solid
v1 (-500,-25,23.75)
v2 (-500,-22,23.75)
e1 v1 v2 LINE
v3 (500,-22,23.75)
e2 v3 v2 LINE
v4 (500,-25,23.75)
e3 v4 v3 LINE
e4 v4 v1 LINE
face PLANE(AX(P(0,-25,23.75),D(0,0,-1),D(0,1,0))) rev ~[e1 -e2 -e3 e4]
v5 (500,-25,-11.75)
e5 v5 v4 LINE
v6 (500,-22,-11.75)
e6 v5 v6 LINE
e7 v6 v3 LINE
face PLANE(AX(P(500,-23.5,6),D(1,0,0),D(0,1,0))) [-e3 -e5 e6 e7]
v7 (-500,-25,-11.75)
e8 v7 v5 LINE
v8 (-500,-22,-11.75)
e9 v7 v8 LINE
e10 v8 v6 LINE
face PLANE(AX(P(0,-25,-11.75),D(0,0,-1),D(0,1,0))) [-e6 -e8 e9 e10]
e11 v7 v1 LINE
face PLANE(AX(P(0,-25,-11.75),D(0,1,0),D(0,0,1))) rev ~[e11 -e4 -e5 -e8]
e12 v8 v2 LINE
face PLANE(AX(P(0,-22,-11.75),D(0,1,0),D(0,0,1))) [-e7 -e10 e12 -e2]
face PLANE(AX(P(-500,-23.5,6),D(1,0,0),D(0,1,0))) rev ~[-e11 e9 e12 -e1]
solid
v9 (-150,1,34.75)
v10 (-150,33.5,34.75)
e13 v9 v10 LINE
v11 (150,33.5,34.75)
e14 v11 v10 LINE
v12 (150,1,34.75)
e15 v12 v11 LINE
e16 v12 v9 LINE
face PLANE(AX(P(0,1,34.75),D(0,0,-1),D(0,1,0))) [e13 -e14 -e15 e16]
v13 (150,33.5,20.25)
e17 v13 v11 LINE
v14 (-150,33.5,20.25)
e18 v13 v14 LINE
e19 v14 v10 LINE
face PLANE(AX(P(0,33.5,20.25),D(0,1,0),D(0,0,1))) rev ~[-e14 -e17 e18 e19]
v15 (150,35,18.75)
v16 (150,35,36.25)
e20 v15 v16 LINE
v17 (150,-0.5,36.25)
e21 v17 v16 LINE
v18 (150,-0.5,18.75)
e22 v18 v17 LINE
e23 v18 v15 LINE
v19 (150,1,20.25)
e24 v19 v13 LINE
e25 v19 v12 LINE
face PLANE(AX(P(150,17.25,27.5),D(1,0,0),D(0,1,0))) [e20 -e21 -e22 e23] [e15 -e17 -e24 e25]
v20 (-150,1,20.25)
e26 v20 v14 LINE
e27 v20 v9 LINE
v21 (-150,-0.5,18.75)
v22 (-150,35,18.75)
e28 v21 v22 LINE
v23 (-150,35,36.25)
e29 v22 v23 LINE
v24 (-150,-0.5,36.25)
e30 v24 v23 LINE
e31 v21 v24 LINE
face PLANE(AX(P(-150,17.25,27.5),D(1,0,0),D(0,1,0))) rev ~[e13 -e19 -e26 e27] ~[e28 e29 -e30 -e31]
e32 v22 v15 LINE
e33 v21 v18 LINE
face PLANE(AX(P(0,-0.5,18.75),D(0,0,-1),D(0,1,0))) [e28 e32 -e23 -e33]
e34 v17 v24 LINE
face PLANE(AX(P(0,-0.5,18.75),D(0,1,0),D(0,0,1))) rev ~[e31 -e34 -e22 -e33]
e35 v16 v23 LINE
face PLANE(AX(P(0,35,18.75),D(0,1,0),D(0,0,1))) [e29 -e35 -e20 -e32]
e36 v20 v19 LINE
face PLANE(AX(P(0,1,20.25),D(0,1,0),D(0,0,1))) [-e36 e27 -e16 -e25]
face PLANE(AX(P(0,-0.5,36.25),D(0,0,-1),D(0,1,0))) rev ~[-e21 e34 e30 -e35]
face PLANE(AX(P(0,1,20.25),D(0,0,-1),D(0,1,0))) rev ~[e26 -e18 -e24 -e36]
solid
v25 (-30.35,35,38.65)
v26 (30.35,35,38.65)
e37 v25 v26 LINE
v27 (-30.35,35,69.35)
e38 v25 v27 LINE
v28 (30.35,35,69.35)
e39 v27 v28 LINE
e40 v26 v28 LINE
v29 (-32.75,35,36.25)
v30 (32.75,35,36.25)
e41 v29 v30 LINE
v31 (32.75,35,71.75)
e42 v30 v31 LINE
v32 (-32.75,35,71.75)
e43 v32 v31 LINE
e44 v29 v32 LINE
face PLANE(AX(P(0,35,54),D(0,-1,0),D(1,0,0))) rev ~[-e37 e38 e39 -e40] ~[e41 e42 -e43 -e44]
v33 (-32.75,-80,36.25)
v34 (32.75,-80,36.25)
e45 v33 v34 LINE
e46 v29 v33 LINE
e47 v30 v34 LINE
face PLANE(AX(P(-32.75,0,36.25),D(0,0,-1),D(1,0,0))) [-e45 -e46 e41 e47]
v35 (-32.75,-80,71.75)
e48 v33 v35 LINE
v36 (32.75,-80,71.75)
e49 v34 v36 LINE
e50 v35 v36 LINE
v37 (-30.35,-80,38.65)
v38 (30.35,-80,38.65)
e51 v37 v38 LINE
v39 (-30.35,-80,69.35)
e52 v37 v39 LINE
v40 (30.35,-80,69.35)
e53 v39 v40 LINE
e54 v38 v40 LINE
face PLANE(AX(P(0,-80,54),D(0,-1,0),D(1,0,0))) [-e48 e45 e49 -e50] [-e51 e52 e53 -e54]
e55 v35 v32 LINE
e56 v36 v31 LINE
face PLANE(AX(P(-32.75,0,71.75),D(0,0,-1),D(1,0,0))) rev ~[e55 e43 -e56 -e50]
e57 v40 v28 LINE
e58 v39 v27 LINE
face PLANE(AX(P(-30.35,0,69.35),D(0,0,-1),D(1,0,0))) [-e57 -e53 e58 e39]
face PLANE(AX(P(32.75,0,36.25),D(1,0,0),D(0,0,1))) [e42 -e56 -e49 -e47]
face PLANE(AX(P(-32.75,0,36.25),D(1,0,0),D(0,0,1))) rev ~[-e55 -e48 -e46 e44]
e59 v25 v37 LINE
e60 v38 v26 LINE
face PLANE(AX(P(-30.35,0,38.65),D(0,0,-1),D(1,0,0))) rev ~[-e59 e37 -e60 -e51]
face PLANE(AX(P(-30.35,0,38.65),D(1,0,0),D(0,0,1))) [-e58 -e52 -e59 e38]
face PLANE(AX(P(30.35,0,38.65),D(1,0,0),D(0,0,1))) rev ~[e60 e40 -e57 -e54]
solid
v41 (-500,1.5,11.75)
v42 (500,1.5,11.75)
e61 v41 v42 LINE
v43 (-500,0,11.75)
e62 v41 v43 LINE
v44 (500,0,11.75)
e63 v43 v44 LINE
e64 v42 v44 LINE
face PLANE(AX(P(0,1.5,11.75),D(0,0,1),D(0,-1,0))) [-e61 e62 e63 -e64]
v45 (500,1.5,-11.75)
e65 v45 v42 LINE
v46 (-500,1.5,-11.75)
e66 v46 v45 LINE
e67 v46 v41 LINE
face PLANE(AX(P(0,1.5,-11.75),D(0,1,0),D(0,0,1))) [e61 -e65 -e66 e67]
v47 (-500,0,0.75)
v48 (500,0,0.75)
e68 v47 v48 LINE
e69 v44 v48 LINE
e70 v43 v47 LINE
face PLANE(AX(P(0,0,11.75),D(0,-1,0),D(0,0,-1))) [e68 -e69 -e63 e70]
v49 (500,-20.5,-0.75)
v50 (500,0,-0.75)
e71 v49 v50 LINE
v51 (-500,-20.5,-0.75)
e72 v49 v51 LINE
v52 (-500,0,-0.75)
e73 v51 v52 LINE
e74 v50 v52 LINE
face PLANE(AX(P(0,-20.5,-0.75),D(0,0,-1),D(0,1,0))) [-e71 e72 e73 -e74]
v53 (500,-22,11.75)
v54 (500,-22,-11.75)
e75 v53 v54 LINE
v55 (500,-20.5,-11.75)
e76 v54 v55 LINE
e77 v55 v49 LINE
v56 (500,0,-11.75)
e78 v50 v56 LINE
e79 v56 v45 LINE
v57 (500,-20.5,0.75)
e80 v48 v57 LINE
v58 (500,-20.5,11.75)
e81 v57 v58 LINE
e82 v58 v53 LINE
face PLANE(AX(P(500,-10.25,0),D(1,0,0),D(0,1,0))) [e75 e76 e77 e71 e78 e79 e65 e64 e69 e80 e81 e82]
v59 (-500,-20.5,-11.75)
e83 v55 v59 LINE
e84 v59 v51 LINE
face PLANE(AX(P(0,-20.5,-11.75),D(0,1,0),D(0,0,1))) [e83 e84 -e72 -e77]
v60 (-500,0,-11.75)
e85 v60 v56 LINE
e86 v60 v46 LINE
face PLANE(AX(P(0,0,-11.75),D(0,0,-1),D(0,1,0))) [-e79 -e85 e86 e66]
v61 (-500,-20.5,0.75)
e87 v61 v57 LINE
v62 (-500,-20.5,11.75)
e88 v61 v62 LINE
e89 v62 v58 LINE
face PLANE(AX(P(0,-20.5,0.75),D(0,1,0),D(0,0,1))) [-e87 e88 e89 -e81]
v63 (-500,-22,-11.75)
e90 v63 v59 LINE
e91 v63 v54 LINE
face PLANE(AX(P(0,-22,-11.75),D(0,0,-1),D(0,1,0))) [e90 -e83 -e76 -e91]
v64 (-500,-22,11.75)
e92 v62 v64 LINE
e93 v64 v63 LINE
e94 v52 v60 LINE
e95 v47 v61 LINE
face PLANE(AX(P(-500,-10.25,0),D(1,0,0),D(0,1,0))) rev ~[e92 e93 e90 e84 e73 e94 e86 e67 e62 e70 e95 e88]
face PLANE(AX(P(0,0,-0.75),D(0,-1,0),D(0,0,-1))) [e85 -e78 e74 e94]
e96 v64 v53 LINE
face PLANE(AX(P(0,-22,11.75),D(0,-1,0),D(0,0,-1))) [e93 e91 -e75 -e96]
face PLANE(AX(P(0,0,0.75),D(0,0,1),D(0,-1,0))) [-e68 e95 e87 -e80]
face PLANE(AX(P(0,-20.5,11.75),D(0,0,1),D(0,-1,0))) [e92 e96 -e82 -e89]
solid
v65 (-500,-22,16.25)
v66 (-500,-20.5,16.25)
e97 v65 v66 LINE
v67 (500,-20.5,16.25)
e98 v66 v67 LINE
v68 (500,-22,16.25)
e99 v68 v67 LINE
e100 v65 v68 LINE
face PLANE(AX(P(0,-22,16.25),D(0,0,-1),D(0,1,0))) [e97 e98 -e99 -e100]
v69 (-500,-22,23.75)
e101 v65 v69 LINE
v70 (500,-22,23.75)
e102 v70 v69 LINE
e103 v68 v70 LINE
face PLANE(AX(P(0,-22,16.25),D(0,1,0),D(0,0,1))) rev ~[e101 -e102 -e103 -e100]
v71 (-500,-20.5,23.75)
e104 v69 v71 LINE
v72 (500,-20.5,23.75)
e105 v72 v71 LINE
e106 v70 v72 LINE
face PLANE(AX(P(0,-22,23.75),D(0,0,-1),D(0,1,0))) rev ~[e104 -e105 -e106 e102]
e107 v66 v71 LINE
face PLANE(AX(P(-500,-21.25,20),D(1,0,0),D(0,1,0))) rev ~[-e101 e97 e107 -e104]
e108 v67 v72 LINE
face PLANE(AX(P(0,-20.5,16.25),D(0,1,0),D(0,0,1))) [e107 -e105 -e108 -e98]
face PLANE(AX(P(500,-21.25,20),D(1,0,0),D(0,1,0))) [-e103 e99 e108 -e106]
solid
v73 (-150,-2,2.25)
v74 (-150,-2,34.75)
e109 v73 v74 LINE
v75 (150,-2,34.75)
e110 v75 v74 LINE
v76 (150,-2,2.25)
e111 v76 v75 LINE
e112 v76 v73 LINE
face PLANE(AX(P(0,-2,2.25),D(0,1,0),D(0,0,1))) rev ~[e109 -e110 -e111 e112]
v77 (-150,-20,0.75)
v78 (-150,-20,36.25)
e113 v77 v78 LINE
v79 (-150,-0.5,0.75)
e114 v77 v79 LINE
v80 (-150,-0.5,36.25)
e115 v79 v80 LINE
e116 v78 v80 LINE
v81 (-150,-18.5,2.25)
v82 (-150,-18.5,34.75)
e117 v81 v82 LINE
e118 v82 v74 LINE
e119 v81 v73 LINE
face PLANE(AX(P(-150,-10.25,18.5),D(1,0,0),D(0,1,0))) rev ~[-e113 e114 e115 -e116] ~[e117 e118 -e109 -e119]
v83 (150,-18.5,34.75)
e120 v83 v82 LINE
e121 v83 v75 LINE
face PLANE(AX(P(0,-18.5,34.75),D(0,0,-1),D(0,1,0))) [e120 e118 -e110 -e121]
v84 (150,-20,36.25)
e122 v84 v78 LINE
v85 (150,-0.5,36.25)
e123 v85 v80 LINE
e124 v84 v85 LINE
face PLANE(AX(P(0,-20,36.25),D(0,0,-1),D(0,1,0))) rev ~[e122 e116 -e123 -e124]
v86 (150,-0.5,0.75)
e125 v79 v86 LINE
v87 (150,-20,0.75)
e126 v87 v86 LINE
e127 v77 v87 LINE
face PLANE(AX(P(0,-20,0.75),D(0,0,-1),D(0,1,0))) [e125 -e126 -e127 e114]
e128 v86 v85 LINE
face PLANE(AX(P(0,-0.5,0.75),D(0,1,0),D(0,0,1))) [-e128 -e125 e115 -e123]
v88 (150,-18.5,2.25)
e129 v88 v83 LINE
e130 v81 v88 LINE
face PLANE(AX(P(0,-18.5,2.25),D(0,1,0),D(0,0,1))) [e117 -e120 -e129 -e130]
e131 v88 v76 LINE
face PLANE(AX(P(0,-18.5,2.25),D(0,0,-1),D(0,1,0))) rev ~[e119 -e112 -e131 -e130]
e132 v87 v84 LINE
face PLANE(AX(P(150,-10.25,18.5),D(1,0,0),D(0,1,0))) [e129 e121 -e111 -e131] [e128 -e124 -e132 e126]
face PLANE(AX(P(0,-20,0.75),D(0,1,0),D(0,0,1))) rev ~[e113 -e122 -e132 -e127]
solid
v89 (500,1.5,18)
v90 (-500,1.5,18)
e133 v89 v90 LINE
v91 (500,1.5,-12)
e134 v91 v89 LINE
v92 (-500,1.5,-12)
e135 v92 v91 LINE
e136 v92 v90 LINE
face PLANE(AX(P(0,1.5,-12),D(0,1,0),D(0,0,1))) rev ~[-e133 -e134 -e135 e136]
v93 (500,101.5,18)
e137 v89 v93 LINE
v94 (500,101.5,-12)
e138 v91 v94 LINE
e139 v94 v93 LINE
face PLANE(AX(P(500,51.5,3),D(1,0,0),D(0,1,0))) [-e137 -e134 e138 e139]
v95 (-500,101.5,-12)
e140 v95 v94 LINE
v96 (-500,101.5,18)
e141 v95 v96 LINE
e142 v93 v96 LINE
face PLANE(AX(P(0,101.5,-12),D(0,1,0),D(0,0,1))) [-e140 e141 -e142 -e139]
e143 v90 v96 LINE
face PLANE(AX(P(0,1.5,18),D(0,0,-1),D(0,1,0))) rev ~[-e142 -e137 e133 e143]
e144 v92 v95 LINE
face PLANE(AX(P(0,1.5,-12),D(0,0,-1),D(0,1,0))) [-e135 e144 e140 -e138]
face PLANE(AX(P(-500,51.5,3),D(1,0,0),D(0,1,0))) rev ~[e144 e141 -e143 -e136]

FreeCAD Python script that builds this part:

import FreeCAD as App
import Part
import Sketcher

V = App.Vector
Q = App.Units.Quantity


def add_polygon(sketch, points):
    """Adds a closed chain of lines whose ends are joined by coincident constraints."""
    first, n = sketch.GeometryCount, len(points)
    for a, b in zip(points, points[1:] + points[:1]):
        sketch.addGeometry(Part.LineSegment(App.Vector(*a, 0), App.Vector(*b, 0)), False)
    for i in range(n):
        sketch.addConstraint(Sketcher.Constraint("Coincident", first + i, 2, first + (i + 1) % n, 1))

doc = App.newDocument("Part")
params = doc.addObject("Spreadsheet::Sheet", "Params")
for row, (alias, value) in enumerate([
    ("sketch1_height", "11 mm"),
    ("sketch1_width", "1.5 mm"),
    ("sketch1_width2", "20.5 mm"),
    ("sketch1_height2", "23.5 mm"),
    ("pad1_length", "1000 mm"),
    ("sketch2_width", "19.5 mm"),
    ("sketch2_width2", "16.5 mm"),
    ("sketch2_height", "35.5 mm"),
    ("sketch2_height2", "32.5 mm"),
    ("pad2_length", "300 mm"),
    ("sketch3_width", "3 mm"),
    ("sketch3_height", "35.5 mm"),
    ("pad3_length", "1000 mm"),
    ("sketch4_width", "1.5 mm"),
    ("sketch4_height", "7.5 mm"),
    ("pad4_length", "1000 mm"),
    ("sketch5_width", "35.5 mm"),
    ("sketch5_width2", "32.5 mm"),
    ("sketch5_height", "17.5 mm"),
    ("sketch5_height2", "14.5 mm"),
    ("pad5_length", "300 mm"),
    ("sketch6_width", "65.5 mm"),
    ("sketch6_width2", "60.7 mm"),
    ("sketch6_height", "35.5 mm"),
    ("sketch6_height2", "30.7 mm"),
    ("pad6_length", "80 mm"),
    ("pad6_length2", "35 mm"),
    ("sketch7_width", "100 mm"),
    ("sketch7_height", "30 mm"),
    ("pad7_length", "1000 mm"),
], start=1):
    params.set(f"A{row}", alias)
    params.set(f"B{row}", "=" + value)
    params.setAlias(f"B{row}", alias)

body = doc.addObject("PartDesign::Body", "Body")

# Sketch on YZ plane
sketch1 = body.newObject("Sketcher::SketchObject", "Sketch")
sketch1.AttachmentSupport = (doc.getObject("YZ_Plane"), [""])
sketch1.MapMode = "FlatFace"
add_polygon(sketch1, [(0, -0.8), (0, -11.8), (1.5, -11.8), (1.5, 11.8), (0, 11.8), (0, 0.8), (-20.5, 0.8), (-20.5, 11.8), (-22, 11.8), (-22, -11.8), (-20.5, -11.8), (-20.5, -0.8)])  # lines 0-11
sketch1.addConstraint([
    Sketcher.Constraint("Vertical", 0),
    Sketcher.Constraint("Horizontal", 1),
    Sketcher.Constraint("Vertical", 2),
    Sketcher.Constraint("Horizontal", 3),
    Sketcher.Constraint("Vertical", 4),
    Sketcher.Constraint("Horizontal", 5),
    Sketcher.Constraint("Vertical", 6),
    Sketcher.Constraint("Horizontal", 7),
    Sketcher.Constraint("Vertical", 8),
    Sketcher.Constraint("Horizontal", 9),
    Sketcher.Constraint("Vertical", 10),
    Sketcher.Constraint("Horizontal", 11),
    Sketcher.Constraint("Symmetric", 0, 2, 3, 2, -1, 1),
    Sketcher.Constraint("Symmetric", 6, 2, 9, 2, -1),
    Sketcher.Constraint("Symmetric", 4, 2, 11, 2, -1),
    Sketcher.Constraint("Horizontal", 3, 2, 6, 2),
    Sketcher.Constraint("Equal", 3, 7),
    Sketcher.Constraint("DistanceY", 0, 2, 0, 1, Q("11 mm")),
    Sketcher.Constraint("DistanceX", 1, 1, 1, 2, Q("1.5 mm")),
    Sketcher.Constraint("DistanceX", 5, 2, 5, 1, Q("20.5 mm")),
    Sketcher.Constraint("DistanceY", 2, 1, 2, 2, Q("23.5 mm")),
])
sketch1.setExpression("Constraints[29]", "Params.sketch1_height")
sketch1.setExpression("Constraints[30]", "Params.sketch1_width")
sketch1.setExpression("Constraints[31]", "Params.sketch1_width2")
sketch1.setExpression("Constraints[32]", "Params.sketch1_height2")
pad1 = body.newObject("PartDesign::Pad", "Pad")
pad1.Profile = sketch1
pad1.setExpression("Length", "Params.pad1_length")
pad1.Midplane = True
body2 = doc.addObject("PartDesign::Body", "Body001")

# Sketch on YZ plane
sketch2 = body2.newObject("Sketcher::SketchObject", "Sketch001")
sketch2.AttachmentSupport = (doc.getObject("YZ_Plane001"), [""])
sketch2.MapMode = "FlatFace"
add_polygon(sketch2, [(-20, 36), (-20, 1), (0, 1), (0, 36)])  # lines 0-3
add_polygon(sketch2, [(-2, 2), (-18, 2), (-18, 35), (-2, 35)])  # lines 4-7
sketch2.addConstraint([
    Sketcher.Constraint("Vertical", 0),
    Sketcher.Constraint("Horizontal", 1),
    Sketcher.Constraint("Vertical", 2),
    Sketcher.Constraint("Horizontal", 3),
    Sketcher.Constraint("Horizontal", 4),
    Sketcher.Constraint("Vertical", 5),
    Sketcher.Constraint("Horizontal", 6),
    Sketcher.Constraint("Vertical", 7),
    Sketcher.Constraint("DistanceX", 1, 1, 1, 2, Q("19.5 mm")),
    Sketcher.Constraint("DistanceX", 4, 2, 4, 1, Q("16.5 mm")),
    Sketcher.Constraint("DistanceY", 0, 2, 0, 1, Q("35.5 mm")),
    Sketcher.Constraint("DistanceY", 5, 1, 5, 2, Q("32.5 mm")),
    Sketcher.Constraint("DistanceX", 0, 2, -1, 1, Q("20 mm")),
    Sketcher.Constraint("DistanceX", 6, 2, -1, 1, Q("2 mm")),
    Sketcher.Constraint("DistanceY", 4, 2, 3, 2, Q("34 mm")),
    Sketcher.Constraint("DistanceY", -1, 1, 0, 2, Q("0.75 mm")),
])
sketch2.setExpression("Constraints[16]", "Params.sketch2_width")
sketch2.setExpression("Constraints[17]", "Params.sketch2_width2")
sketch2.setExpression("Constraints[18]", "Params.sketch2_height")
sketch2.setExpression("Constraints[19]", "Params.sketch2_height2")
pad2 = body2.newObject("PartDesign::Pad", "Pad001")
pad2.Profile = sketch2
pad2.setExpression("Length", "Params.pad2_length")
pad2.Midplane = True
body3 = doc.addObject("PartDesign::Body", "Body002")

# Sketch on YZ plane
sketch3 = body3.newObject("Sketcher::SketchObject", "Sketch002")
sketch3.AttachmentSupport = (doc.getObject("YZ_Plane002"), [""])
sketch3.MapMode = "FlatFace"
add_polygon(sketch3, [(-25, 23.8), (-25, -11.8), (-22, -11.8), (-22, 23.8)])  # lines 0-3
sketch3.addConstraint([
    Sketcher.Constraint("Vertical", 0),
    Sketcher.Constraint("Horizontal", 1),
    Sketcher.Constraint("Vertical", 2),
    Sketcher.Constraint("Horizontal", 3),
    Sketcher.Constraint("DistanceX", 1, 1, 1, 2, Q("3 mm")),
    Sketcher.Constraint("DistanceY", 0, 2, 0, 1, Q("35.5 mm")),
    Sketcher.Constraint("DistanceX", 0, 2, -1, 1, Q("25 mm")),
    Sketcher.Constraint("DistanceY", 0, 2, -1, 1, Q("11.75 mm")),
])
sketch3.setExpression("Constraints[8]", "Params.sketch3_width")
sketch3.setExpression("Constraints[9]", "Params.sketch3_height")
pad3 = body3.newObject("PartDesign::Pad", "Pad002")
pad3.Profile = sketch3
pad3.setExpression("Length", "Params.pad3_length")
pad3.Midplane = True
body4 = doc.addObject("PartDesign::Body", "Body003")

# Sketch on YZ plane
sketch4 = body4.newObject("Sketcher::SketchObject", "Sketch003")
sketch4.AttachmentSupport = (doc.getObject("YZ_Plane003"), [""])
sketch4.MapMode = "FlatFace"
add_polygon(sketch4, [(-22, 23.8), (-22, 16.2), (-20.5, 16.2), (-20.5, 23.8)])  # lines 0-3
sketch4.addConstraint([
    Sketcher.Constraint("Vertical", 0),
    Sketcher.Constraint("Horizontal", 1),
    Sketcher.Constraint("Vertical", 2),
    Sketcher.Constraint("Horizontal", 3),
    Sketcher.Constraint("DistanceX", 1, 1, 1, 2, Q("1.5 mm")),
    Sketcher.Constraint("DistanceY", 0, 2, 0, 1, Q("7.5 mm")),
    Sketcher.Constraint("DistanceX", 0, 2, -1, 1, Q("22 mm")),
    Sketcher.Constraint("DistanceY", -1, 1, 0, 2, Q("16.25 mm")),
])
sketch4.setExpression("Constraints[8]", "Params.sketch4_width")
sketch4.setExpression("Constraints[9]", "Params.sketch4_height")
pad4 = body4.newObject("PartDesign::Pad", "Pad003")
pad4.Profile = sketch4
pad4.setExpression("Length", "Params.pad4_length")
pad4.Midplane = True
body5 = doc.addObject("PartDesign::Body", "Body004")

# Sketch on YZ plane
sketch5 = body5.newObject("Sketcher::SketchObject", "Sketch004")
sketch5.AttachmentSupport = (doc.getObject("YZ_Plane004"), [""])
sketch5.MapMode = "FlatFace"
add_polygon(sketch5, [(0, 36), (0, 19), (35, 19), (35, 36)])  # lines 0-3
add_polygon(sketch5, [(34, 20), (1, 20), (1, 35), (34, 35)])  # lines 4-7
sketch5.addConstraint([
    Sketcher.Constraint("Vertical", 0),
    Sketcher.Constraint("Horizontal", 1),
    Sketcher.Constraint("Vertical", 2),
    Sketcher.Constraint("Horizontal", 3),
    Sketcher.Constraint("Horizontal", 4),
    Sketcher.Constraint("Vertical", 5),
    Sketcher.Constraint("Horizontal", 6),
    Sketcher.Constraint("Vertical", 7),
    Sketcher.Constraint("DistanceX", 1, 1, 1, 2, Q("35.5 mm")),
    Sketcher.Constraint("DistanceX", 4, 2, 4, 1, Q("32.5 mm")),
    Sketcher.Constraint("DistanceY", 0, 2, 0, 1, Q("17.5 mm")),
    Sketcher.Constraint("DistanceY", 5, 1, 5, 2, Q("14.5 mm")),
    Sketcher.Constraint("DistanceX", -1, 1, 1, 2, Q("35 mm")),
    Sketcher.Constraint("DistanceX", -1, 1, 4, 2, Q("1 mm")),
    Sketcher.Constraint("DistanceY", 4, 2, 3, 2, Q("16 mm")),
    Sketcher.Constraint("DistanceY", -1, 1, 0, 2, Q("18.75 mm")),
])
sketch5.setExpression("Constraints[16]", "Params.sketch5_width")
sketch5.setExpression("Constraints[17]", "Params.sketch5_width2")
sketch5.setExpression("Constraints[18]", "Params.sketch5_height")
sketch5.setExpression("Constraints[19]", "Params.sketch5_height2")
pad5 = body5.newObject("PartDesign::Pad", "Pad004")
pad5.Profile = sketch5
pad5.setExpression("Length", "Params.pad5_length")
pad5.Midplane = True
body6 = doc.addObject("PartDesign::Body", "Body005")

# Sketch on XZ plane
sketch6 = body6.newObject("Sketcher::SketchObject", "Sketch005")
sketch6.AttachmentSupport = (doc.getObject("XZ_Plane005"), [""])
sketch6.MapMode = "FlatFace"
add_polygon(sketch6, [(-33, 72), (-33, 36), (33, 36), (33, 72)])  # lines 0-3
add_polygon(sketch6, [(30, 39), (-30, 39), (-30, 69), (30, 69)])  # lines 4-7
sketch6.addConstraint([
    Sketcher.Constraint("Vertical", 0),
    Sketcher.Constraint("Horizontal", 1),
    Sketcher.Constraint("Vertical", 2),
    Sketcher.Constraint("Horizontal", 3),
    Sketcher.Constraint("Horizontal", 4),
    Sketcher.Constraint("Vertical", 5),
    Sketcher.Constraint("Horizontal", 6),
    Sketcher.Constraint("Vertical", 7),
    Sketcher.Constraint("DistanceX", 1, 1, 1, 2, Q("65.5 mm")),
    Sketcher.Constraint("DistanceX", 4, 2, 4, 1, Q("60.7 mm")),
    Sketcher.Constraint("DistanceY", 0, 2, 0, 1, Q("35.5 mm")),
    Sketcher.Constraint("DistanceY", 5, 1, 5, 2, Q("30.7 mm")),
    Sketcher.Constraint("DistanceX", 0, 2, 4, 2, Q("2.4 mm")),
    Sketcher.Constraint("DistanceY", 0, 2, 4, 2, Q("2.4 mm")),
    Sketcher.Constraint("DistanceX", 0, 2, -1, 1, Q("32.75 mm")),
    Sketcher.Constraint("DistanceY", -1, 1, 0, 2, Q("36.25 mm")),
])
sketch6.setExpression("Constraints[16]", "Params.sketch6_width")
sketch6.setExpression("Constraints[17]", "Params.sketch6_width2")
sketch6.setExpression("Constraints[18]", "Params.sketch6_height")
sketch6.setExpression("Constraints[19]", "Params.sketch6_height2")
pad6 = body6.newObject("PartDesign::Pad", "Pad005")
pad6.Profile = sketch6
pad6.Type = "TwoLengths"
pad6.setExpression("Length", "Params.pad6_length")
pad6.setExpression("Length2", "Params.pad6_length2")
body7 = doc.addObject("PartDesign::Body", "Body006")

# Sketch on YZ plane
sketch7 = body7.newObject("Sketcher::SketchObject", "Sketch006")
sketch7.AttachmentSupport = (doc.getObject("YZ_Plane006"), [""])
sketch7.MapMode = "FlatFace"
add_polygon(sketch7, [(2, 18), (2, -12), (102, -12), (102, 18)])  # lines 0-3
sketch7.addConstraint([
    Sketcher.Constraint("Vertical", 0),
    Sketcher.Constraint("Horizontal", 1),
    Sketcher.Constraint("Vertical", 2),
    Sketcher.Constraint("Horizontal", 3),
    Sketcher.Constraint("DistanceX", 1, 1, 1, 2, Q("100 mm")),
    Sketcher.Constraint("DistanceY", 0, 2, 0, 1, Q("30 mm")),
    Sketcher.Constraint("DistanceY", 0, 2, -1, 1, Q("12 mm")),
    Sketcher.Constraint("DistanceX", -1, 1, 0, 2, Q("1.5 mm")),
])
sketch7.setExpression("Constraints[8]", "Params.sketch7_width")
sketch7.setExpression("Constraints[9]", "Params.sketch7_height")
pad7 = body7.newObject("PartDesign::Pad", "Pad006")
pad7.Profile = sketch7
pad7.setExpression("Length", "Params.pad7_length")
pad7.Midplane = True

doc.recompute()
